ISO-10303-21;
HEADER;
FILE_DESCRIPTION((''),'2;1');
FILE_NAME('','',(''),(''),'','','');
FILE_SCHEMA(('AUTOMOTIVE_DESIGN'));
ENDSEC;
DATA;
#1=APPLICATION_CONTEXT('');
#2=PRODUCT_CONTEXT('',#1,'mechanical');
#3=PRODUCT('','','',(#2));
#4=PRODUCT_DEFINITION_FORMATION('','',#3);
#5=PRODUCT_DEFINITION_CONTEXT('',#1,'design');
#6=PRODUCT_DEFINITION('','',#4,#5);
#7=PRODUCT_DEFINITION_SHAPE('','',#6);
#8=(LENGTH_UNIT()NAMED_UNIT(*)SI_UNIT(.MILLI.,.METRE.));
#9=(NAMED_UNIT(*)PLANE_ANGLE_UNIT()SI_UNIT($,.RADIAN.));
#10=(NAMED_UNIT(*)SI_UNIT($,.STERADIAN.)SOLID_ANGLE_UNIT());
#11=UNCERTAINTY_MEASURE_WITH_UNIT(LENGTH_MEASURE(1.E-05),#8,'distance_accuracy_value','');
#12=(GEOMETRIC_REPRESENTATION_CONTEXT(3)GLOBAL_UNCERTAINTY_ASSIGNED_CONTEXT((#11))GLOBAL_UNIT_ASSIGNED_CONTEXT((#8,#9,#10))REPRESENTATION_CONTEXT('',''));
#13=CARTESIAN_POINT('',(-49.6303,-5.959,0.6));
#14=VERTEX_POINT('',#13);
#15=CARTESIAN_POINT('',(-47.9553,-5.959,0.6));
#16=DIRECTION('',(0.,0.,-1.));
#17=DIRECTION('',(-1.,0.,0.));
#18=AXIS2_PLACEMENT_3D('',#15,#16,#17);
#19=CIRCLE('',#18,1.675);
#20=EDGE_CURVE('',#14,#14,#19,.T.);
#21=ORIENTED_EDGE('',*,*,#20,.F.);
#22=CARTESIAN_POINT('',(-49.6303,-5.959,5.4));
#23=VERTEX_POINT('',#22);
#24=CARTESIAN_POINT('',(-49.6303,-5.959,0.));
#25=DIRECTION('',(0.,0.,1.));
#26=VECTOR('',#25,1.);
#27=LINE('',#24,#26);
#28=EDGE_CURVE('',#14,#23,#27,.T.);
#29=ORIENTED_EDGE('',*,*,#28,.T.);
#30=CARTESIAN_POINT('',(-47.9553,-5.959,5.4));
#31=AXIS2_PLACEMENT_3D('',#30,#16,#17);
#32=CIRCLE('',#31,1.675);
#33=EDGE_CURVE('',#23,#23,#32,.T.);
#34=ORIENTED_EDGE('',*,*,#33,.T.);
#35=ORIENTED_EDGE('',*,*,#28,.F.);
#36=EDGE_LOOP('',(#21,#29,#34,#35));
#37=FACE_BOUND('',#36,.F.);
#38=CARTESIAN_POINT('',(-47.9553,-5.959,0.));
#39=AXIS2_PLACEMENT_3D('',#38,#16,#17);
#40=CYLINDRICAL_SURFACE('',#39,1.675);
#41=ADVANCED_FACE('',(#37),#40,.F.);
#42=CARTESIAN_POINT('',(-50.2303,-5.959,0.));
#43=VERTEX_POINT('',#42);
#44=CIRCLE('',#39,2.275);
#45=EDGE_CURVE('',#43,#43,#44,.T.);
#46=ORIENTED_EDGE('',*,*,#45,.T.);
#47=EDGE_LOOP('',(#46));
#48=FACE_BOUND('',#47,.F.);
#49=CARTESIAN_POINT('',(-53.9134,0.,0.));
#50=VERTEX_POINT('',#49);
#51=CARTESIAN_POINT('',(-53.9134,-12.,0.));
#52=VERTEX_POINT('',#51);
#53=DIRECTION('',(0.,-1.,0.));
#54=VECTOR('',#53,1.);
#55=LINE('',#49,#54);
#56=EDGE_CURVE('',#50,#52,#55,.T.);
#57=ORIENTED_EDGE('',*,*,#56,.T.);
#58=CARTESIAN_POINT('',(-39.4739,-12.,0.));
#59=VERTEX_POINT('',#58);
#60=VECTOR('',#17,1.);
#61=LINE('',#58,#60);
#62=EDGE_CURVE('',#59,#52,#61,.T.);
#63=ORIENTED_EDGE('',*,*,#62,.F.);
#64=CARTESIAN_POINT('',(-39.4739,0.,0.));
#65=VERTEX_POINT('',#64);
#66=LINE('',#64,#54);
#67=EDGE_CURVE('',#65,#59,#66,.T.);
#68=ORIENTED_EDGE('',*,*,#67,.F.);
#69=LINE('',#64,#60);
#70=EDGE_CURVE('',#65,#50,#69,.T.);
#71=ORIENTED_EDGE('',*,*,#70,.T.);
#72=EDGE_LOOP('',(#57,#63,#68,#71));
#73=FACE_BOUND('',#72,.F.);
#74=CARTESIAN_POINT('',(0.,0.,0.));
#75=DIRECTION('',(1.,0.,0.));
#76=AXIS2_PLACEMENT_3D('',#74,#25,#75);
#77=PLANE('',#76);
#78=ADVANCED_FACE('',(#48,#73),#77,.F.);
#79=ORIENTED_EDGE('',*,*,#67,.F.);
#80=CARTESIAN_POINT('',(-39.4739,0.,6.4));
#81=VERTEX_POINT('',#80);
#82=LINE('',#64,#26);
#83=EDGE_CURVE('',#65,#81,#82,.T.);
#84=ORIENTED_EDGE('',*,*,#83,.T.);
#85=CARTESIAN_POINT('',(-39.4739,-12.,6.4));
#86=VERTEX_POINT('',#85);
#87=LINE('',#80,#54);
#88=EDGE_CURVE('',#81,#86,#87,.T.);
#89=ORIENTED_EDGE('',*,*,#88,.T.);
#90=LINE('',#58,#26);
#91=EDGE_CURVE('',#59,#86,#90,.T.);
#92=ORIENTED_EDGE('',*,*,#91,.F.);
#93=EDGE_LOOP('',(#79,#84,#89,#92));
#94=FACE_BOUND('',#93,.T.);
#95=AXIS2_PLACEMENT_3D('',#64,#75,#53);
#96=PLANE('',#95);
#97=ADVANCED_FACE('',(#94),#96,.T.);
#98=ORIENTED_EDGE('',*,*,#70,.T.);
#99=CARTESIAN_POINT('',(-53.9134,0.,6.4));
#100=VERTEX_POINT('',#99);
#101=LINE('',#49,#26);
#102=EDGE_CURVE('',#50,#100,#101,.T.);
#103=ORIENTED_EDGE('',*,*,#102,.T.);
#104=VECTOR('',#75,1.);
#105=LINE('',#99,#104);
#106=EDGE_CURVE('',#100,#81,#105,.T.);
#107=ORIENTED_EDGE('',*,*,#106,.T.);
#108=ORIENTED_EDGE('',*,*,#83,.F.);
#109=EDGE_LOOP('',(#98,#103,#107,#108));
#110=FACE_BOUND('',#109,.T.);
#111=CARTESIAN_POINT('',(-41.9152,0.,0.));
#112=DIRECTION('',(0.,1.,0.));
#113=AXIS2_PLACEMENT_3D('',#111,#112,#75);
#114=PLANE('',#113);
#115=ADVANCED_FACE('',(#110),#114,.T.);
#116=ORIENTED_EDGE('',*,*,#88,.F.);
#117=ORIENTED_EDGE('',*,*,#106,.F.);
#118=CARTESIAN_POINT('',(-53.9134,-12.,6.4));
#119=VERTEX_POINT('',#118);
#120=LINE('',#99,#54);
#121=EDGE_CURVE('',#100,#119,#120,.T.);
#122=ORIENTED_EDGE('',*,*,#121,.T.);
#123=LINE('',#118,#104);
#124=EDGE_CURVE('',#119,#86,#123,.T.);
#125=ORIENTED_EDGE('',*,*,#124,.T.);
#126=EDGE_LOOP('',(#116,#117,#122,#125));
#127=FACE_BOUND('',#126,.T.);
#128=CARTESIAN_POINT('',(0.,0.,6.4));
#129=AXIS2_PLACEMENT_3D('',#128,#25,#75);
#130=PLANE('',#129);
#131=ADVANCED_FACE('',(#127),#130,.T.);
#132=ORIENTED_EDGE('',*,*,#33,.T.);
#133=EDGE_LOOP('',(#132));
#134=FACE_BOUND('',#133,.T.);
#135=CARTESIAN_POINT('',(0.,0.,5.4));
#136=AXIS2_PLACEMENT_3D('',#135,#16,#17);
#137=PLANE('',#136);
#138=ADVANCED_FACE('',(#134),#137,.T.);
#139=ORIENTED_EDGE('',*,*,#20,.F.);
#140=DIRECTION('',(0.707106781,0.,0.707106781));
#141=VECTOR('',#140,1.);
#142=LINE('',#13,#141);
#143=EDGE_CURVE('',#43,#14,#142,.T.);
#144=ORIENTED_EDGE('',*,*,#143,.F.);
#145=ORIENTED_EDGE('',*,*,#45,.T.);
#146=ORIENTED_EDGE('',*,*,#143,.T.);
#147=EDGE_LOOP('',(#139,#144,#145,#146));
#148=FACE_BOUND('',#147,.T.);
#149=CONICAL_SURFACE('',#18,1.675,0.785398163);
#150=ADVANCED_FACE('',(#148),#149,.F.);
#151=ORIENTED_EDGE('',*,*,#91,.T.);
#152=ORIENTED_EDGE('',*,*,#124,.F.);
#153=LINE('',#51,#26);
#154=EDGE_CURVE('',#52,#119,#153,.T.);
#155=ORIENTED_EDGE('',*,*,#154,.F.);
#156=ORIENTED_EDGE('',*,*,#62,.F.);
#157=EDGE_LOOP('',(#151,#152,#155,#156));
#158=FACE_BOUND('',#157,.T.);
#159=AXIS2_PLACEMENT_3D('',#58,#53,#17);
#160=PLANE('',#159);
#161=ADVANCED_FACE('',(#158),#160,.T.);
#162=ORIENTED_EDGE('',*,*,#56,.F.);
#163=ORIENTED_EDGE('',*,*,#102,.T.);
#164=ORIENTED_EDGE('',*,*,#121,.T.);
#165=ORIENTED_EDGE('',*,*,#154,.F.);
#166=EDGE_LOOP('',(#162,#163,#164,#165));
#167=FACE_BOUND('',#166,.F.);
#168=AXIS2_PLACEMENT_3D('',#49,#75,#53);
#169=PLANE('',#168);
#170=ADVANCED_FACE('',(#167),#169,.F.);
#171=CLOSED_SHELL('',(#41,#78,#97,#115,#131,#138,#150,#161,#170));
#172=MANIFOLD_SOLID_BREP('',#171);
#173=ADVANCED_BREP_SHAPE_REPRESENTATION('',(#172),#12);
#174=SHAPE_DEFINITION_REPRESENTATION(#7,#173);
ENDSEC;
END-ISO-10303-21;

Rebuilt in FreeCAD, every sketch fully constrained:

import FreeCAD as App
import Part
import Sketcher

V = App.Vector
Q = App.Units.Quantity


def edges_at(feature, points):
    """Names of the edges that pass closest to the given points."""
    edges = feature.Shape.Edges
    near = lambda p: min(range(len(edges)), key=lambda i: edges[i].distToShape(Part.Vertex(*p))[0])
    return sorted({f"Edge{near(p) + 1}" for p in points})


def add_polygon(sketch, points):
    """Adds a closed chain of lines whose ends are joined by coincident constraints."""
    first, n = sketch.GeometryCount, len(points)
    for a, b in zip(points, points[1:] + points[:1]):
        sketch.addGeometry(Part.LineSegment(App.Vector(*a, 0), App.Vector(*b, 0)), False)
    for i in range(n):
        sketch.addConstraint(Sketcher.Constraint("Coincident", first + i, 2, first + (i + 1) % n, 1))

doc = App.newDocument("Part")
body = doc.addObject("PartDesign::Body", "Body")

# Sketch on XY plane
sketch1 = doc.addObject("Sketcher::SketchObject", "Sketch")
body.addObject(sketch1)
sketch1.AttachmentSupport = (doc.XY_Plane, [""])
sketch1.MapMode = "FlatFace"
add_polygon(sketch1, [(-39, 0), (-54, 0), (-54, -12), (-39, -12)])  # lines 0-3
sketch1.addConstraint([
    Sketcher.Constraint("Horizontal", 0),
    Sketcher.Constraint("Vertical", 1),
    Sketcher.Constraint("Horizontal", 2),
    Sketcher.Constraint("Vertical", 3),
    Sketcher.Constraint("PointOnObject", 0, 2, -1),
    Sketcher.Constraint("DistanceY", 1, 2, 1, 1, Q("12 mm")),
    Sketcher.Constraint("DistanceX", 0, 2, 0, 1, Q("14.4395 mm")),
    Sketcher.Constraint("DistanceX", 2, 2, -1, 1, Q("39.474 mm")),
])
pad1 = doc.addObject("PartDesign::Pad", "Pad")
body.addObject(pad1)
pad1.Profile = sketch1
pad1.Length = 6.4

# Sketch on XY plane
sketch2 = doc.addObject("Sketcher::SketchObject", "Sketch001")
body.addObject(sketch2)
sketch2.AttachmentSupport = (doc.XY_Plane, [""])
sketch2.MapMode = "FlatFace"
sketch2.addGeometry(Part.Circle(V(-48, -6, 0), V(0, 0, 1), 1.7), False)
sketch2.addConstraint([
    Sketcher.Constraint("Diameter", 0, Q("3.35 mm")),
    Sketcher.Constraint("DistanceY", 0, 3, -1, 1, Q("5.959 mm")),
    Sketcher.Constraint("DistanceX", 0, 3, -1, 1, Q("47.9553 mm")),
])
pocket1 = doc.addObject("PartDesign::Pocket", "Pocket")
body.addObject(pocket1)
pocket1.Profile = sketch2
pocket1.Length = 5.4
pocket1.Reversed = True
doc.recompute()

chamfer = doc.addObject("PartDesign::Chamfer", "Chamfer")
body.addObject(chamfer)
chamfer.Base = (pocket1, edges_at(pocket1, [(-46.28, -5.959, 0)]))
chamfer.Size = 0.6

doc.recompute()
